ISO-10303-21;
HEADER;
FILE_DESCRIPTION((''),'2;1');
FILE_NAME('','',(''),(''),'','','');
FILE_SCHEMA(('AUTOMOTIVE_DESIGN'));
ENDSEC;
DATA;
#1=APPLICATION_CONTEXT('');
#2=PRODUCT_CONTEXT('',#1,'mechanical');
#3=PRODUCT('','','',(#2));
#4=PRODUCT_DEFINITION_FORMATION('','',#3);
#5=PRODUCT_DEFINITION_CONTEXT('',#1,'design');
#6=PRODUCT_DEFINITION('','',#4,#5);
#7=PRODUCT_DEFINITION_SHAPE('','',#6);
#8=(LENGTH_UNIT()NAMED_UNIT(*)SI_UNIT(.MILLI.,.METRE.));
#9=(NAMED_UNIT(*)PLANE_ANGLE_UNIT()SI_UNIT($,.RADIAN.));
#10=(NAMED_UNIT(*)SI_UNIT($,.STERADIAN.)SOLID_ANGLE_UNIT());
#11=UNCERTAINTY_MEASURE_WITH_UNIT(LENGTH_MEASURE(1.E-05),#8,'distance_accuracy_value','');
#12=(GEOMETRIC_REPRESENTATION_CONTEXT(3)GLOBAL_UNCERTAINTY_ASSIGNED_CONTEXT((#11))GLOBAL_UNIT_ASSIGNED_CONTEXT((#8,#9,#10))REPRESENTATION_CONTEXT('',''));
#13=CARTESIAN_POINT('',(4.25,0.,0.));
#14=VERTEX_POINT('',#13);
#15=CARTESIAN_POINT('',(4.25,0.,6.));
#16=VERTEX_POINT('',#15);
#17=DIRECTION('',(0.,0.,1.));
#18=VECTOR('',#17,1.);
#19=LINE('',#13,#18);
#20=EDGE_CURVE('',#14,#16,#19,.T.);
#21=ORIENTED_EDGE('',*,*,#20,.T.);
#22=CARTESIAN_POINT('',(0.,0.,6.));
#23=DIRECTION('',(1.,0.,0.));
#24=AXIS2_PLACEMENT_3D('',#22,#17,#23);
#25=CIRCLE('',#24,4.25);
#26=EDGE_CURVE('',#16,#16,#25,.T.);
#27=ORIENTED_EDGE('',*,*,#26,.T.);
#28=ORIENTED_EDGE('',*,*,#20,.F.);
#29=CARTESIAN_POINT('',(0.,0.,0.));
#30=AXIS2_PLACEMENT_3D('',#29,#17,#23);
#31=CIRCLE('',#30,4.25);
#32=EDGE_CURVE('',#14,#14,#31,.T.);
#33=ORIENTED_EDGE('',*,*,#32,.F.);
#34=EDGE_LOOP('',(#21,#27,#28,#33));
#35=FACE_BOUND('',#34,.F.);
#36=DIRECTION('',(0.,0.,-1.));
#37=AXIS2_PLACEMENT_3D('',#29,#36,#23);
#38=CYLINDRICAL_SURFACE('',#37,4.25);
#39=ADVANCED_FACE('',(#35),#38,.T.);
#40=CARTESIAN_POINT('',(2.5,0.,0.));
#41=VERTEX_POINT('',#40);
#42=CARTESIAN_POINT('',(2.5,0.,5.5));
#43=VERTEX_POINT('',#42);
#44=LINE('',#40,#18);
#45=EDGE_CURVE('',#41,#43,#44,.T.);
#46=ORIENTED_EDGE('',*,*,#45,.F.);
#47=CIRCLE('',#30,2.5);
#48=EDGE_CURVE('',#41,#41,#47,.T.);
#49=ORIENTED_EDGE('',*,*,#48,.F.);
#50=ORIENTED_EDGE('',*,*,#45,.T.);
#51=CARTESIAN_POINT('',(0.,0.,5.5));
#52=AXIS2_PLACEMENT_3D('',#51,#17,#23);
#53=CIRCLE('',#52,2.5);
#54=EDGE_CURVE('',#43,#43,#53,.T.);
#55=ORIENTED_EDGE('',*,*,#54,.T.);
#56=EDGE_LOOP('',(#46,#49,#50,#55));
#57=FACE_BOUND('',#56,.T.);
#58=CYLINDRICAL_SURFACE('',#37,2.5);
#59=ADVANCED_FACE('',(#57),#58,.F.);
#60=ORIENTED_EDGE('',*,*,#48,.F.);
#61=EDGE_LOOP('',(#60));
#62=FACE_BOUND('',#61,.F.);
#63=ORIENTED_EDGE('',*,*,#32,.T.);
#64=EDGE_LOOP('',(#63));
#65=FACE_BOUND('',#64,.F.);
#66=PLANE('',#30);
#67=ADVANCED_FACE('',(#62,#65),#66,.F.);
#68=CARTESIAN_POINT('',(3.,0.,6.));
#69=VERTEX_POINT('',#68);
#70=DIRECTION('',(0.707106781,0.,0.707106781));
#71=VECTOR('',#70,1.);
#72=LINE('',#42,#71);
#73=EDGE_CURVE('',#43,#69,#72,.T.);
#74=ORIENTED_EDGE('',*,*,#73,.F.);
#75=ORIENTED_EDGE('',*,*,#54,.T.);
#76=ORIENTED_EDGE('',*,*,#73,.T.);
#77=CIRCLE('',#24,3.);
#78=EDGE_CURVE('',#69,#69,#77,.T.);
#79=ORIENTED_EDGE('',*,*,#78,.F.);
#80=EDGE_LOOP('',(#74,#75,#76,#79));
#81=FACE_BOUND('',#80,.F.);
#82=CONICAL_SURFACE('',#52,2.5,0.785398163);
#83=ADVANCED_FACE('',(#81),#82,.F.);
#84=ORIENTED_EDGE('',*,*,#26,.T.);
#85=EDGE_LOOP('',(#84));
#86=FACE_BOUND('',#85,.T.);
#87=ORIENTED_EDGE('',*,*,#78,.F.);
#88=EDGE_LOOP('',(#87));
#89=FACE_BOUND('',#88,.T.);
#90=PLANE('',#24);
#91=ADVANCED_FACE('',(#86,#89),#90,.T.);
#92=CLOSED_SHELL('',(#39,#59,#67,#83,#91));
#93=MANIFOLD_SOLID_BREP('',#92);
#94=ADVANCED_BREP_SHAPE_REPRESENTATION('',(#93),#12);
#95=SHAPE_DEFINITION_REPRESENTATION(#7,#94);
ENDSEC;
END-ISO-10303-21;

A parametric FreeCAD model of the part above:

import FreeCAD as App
import Part
import Sketcher
Q = App.Units.Quantity


def edges_at(feature, points):
    """Names of the edges that pass closest to the given points."""
    edges = feature.Shape.Edges
    near = lambda p: min(range(len(edges)), key=lambda i: edges[i].distToShape(Part.Vertex(*p))[0])
    return sorted({f"Edge{near(p) + 1}" for p in points})

doc = App.newDocument("Part")
body = doc.addObject("PartDesign::Body", "Body")

# Sketch on XY plane
sketch1 = doc.addObject("Sketcher::SketchObject", "Sketch")
body.addObject(sketch1)
sketch1.AttachmentSupport = (doc.XY_Plane, [""])
sketch1.MapMode = "FlatFace"
sketch1.addGeometry([
    Part.Circle(App.Vector(0, 0, 0), App.Vector(0, 0, 1), 4.2),
    Part.Circle(App.Vector(0, 0, 0), App.Vector(0, 0, 1), 2.5),
], False)
sketch1.addConstraint([
    Sketcher.Constraint("Coincident", 0, 3, -1, 1),
    Sketcher.Constraint("Coincident", 1, 3, -1, 1),
    Sketcher.Constraint("Diameter", 1, Q("5 mm")),
    Sketcher.Constraint("Diameter", 0, Q("8.5 mm")),
])
pad1 = doc.addObject("PartDesign::Pad", "Pad")
body.addObject(pad1)
pad1.Profile = sketch1
pad1.Length = 6
doc.recompute()

chamfer = doc.addObject("PartDesign::Chamfer", "Chamfer")
body.addObject(chamfer)
chamfer.Base = (pad1, edges_at(pad1, [(-2.5, 0, 6)]))
chamfer.Size = 0.5

doc.recompute()
